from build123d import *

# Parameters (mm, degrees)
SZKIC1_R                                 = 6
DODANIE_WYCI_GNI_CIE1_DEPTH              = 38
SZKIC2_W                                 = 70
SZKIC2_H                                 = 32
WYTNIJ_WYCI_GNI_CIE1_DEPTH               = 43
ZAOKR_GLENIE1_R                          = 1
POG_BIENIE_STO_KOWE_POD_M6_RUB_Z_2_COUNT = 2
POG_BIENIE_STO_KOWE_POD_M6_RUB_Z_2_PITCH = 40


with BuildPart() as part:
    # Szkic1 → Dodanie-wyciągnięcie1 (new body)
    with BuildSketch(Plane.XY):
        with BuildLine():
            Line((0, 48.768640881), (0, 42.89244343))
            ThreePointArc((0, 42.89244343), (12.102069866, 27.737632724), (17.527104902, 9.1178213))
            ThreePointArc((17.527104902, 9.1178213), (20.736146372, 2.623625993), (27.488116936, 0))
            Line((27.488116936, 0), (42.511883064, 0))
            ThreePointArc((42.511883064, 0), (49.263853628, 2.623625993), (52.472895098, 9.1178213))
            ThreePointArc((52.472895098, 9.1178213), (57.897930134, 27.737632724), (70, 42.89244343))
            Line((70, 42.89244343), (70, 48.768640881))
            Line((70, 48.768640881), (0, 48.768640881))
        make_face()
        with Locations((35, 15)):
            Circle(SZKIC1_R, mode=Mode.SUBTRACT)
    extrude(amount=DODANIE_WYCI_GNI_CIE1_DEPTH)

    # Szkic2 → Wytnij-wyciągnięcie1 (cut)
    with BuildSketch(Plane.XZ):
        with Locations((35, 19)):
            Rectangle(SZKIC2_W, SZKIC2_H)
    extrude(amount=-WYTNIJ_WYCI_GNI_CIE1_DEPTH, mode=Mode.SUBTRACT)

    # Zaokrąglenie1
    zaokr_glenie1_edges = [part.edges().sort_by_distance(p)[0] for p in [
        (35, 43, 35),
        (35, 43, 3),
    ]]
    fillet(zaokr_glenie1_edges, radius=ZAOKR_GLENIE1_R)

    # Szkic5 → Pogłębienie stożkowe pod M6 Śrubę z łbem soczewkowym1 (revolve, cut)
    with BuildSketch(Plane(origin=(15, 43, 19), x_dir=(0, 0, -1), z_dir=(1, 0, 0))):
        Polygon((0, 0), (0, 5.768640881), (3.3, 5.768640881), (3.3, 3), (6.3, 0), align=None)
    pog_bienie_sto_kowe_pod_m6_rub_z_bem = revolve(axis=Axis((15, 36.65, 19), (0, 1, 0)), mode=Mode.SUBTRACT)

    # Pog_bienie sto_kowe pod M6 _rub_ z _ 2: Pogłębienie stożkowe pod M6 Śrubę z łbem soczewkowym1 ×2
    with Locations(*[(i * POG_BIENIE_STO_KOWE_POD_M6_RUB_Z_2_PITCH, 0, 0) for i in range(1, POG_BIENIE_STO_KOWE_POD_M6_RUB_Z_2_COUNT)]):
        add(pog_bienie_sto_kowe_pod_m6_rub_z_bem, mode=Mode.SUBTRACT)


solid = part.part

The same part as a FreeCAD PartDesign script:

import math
import FreeCAD as App
import Part
import Sketcher
Q = App.Units.Quantity


def edges_at(feature, points):
    """Names of the edges that pass closest to the given points."""
    edges = feature.Shape.Edges
    near = lambda p: min(range(len(edges)), key=lambda i: edges[i].distToShape(Part.Vertex(*p))[0])
    return sorted({f"Edge{near(p) + 1}" for p in points})


def add_polygon(sketch, points):
    """Adds a closed chain of lines whose ends are joined by coincident constraints."""
    first, n = sketch.GeometryCount, len(points)
    for a, b in zip(points, points[1:] + points[:1]):
        sketch.addGeometry(Part.LineSegment(App.Vector(*a, 0), App.Vector(*b, 0)), False)
    for i in range(n):
        sketch.addConstraint(Sketcher.Constraint("Coincident", first + i, 2, first + (i + 1) % n, 1))

doc = App.newDocument("Part")
body = doc.addObject("PartDesign::Body", "Body")

# Sketch on XY plane
sketch1 = body.newObject("Sketcher::SketchObject", "Sketch")
sketch1.AttachmentSupport = (doc.getObject("XY_Plane"), [""])
sketch1.MapMode = "FlatFace"
sketch1.addGeometry([
    Part.LineSegment(App.Vector(0, 49, 0), App.Vector(0, 43, 0)),  # 0
    Part.ArcOfCircle(Part.Circle(App.Vector(-32, 5, 0), App.Vector(0, 0, 1), 50), math.radians(5), math.radians(50)),  # 1
    Part.ArcOfCircle(Part.Circle(App.Vector(27, 10, 0), App.Vector(0, 0, 1), 10), math.radians(-175), math.radians(-90)),  # 2
    Part.LineSegment(App.Vector(27, 0, 0), App.Vector(43, 0, 0)),  # 3
    Part.ArcOfCircle(Part.Circle(App.Vector(43, 10, 0), App.Vector(0, 0, 1), 10), math.radians(-90), math.radians(-5)),  # 4
    Part.ArcOfCircle(Part.Circle(App.Vector(102, 5, 0), App.Vector(0, 0, 1), 50), math.radians(130), math.radians(175)),  # 5
    Part.LineSegment(App.Vector(70, 43, 0), App.Vector(70, 49, 0)),  # 6
    Part.LineSegment(App.Vector(70, 49, 0), App.Vector(0, 49, 0)),  # 7
    Part.Circle(App.Vector(35, 15, 0), App.Vector(0, 0, 1), 6),  # 8
], False)
sketch1.addConstraint([
    Sketcher.Constraint("Coincident", 0, 2, 1, 2),
    Sketcher.Constraint("Tangent", 1, 1, 2, 1),
    Sketcher.Constraint("Tangent", 2, 2, 3, 1),
    Sketcher.Constraint("Tangent", 3, 2, 4, 1),
    Sketcher.Constraint("Tangent", 4, 2, 5, 2),
    Sketcher.Constraint("Coincident", 5, 1, 6, 1),
    Sketcher.Constraint("Coincident", 6, 2, 7, 1),
    Sketcher.Constraint("Coincident", 7, 2, 0, 1),
    Sketcher.Constraint("Vertical", 0),
    Sketcher.Constraint("Horizontal", 3),
    Sketcher.Constraint("Vertical", 6),
    Sketcher.Constraint("Horizontal", 7),
    Sketcher.Constraint("Equal", 2, 4),
    Sketcher.Constraint("Equal", 1, 5),
    Sketcher.Constraint("PointOnObject", 0, 2, -2),
    Sketcher.Constraint("PointOnObject", 2, 2, -1),
    Sketcher.Constraint("Horizontal", 1, 3, 5, 3),
    Sketcher.Constraint("Horizontal", 0, 2, 5, 1),
    Sketcher.Constraint("Diameter", 8, Q("12 mm")),
    Sketcher.Constraint("Radius", 1, Q("50 mm")),
    Sketcher.Constraint("Radius", 2, Q("10 mm")),
    Sketcher.Constraint("DistanceX", 7, 2, 7, 1, Q("70 mm")),
    Sketcher.Constraint("DistanceX", -1, 1, 8, 3, Q("35 mm")),
    Sketcher.Constraint("DistanceY", -1, 1, 8, 3, Q("15 mm")),
    Sketcher.Constraint("DistanceX", 3, 1, 3, 2, Q("15.023766 mm")),
    Sketcher.Constraint("DistanceY", 0, 2, 0, 1, Q("5.876197 mm")),
    Sketcher.Constraint("DistanceY", -1, 1, 4, 2, Q("9.117821 mm")),
])
pad1 = body.newObject("PartDesign::Pad", "Pad")
pad1.Profile = sketch1
pad1.Length = 38

# Sketch on XZ plane
sketch2 = body.newObject("Sketcher::SketchObject", "Sketch001")
sketch2.AttachmentSupport = (doc.getObject("XZ_Plane"), [""])
sketch2.MapMode = "FlatFace"
add_polygon(sketch2, [(0, 35), (0, 3), (70, 3), (70, 35)])  # lines 0-3
sketch2.addConstraint([
    Sketcher.Constraint("Vertical", 0),
    Sketcher.Constraint("Horizontal", 1),
    Sketcher.Constraint("Vertical", 2),
    Sketcher.Constraint("Horizontal", 3),
    Sketcher.Constraint("PointOnObject", 0, 2, -2),
    Sketcher.Constraint("DistanceX", 1, 1, 1, 2, Q("70 mm")),
    Sketcher.Constraint("DistanceY", 0, 2, 0, 1, Q("32 mm")),
    Sketcher.Constraint("DistanceY", -1, 1, 0, 2, Q("3 mm")),
])
pocket1 = body.newObject("PartDesign::Pocket", "Pocket")
pocket1.Profile = sketch2
pocket1.Length = 43
doc.recompute()

fillet = body.newObject("PartDesign::Fillet", "Fillet")
fillet.Base = (pocket1, edges_at(pocket1, [(35, 43, 35), (35, 43, 3)]))
fillet.Radius = 1

# Sketch on YZ plane
sketch3 = body.newObject("Sketcher::SketchObject", "Sketch002")
sketch3.AttachmentSupport = (doc.getObject("YZ_Plane"), [""])
sketch3.MapMode = "FlatFace"
sketch3.AttachmentOffset = App.Placement(App.Vector(0, 0, 15), App.Rotation())
add_polygon(sketch3, [(48.8, 19), (43, 19), (43, 12.7), (46, 15.7), (48.8, 15.7)])  # lines 0-4
sketch3.addGeometry(Part.LineSegment(App.Vector(43, 19, 0), App.Vector(48.8, 19, 0)), True)  # axis
sketch3.addConstraint([
    Sketcher.Constraint("Horizontal", 0),
    Sketcher.Constraint("Vertical", 1),
    Sketcher.Constraint("Horizontal", 3),
    Sketcher.Constraint("Vertical", 4),
    Sketcher.Constraint("Horizontal", 5),
    Sketcher.Constraint("Coincident", 5, 1, 0, 2),
    Sketcher.Constraint("Vertical", 3, 2, 5, 2),
    Sketcher.Constraint("Angle", 2, Q("45 deg")),
    Sketcher.Constraint("DistanceY", 1, 2, 1, 1, Q("6.3 mm")),
    Sketcher.Constraint("DistanceY", 4, 1, 4, 2, Q("3.3 mm")),
    Sketcher.Constraint("DistanceX", -1, 1, 0, 2, Q("43 mm")),
    Sketcher.Constraint("DistanceY", -1, 1, 0, 2, Q("19 mm")),
    Sketcher.Constraint("DistanceX", 0, 2, 0, 1, Q("5.768641 mm")),
])
groove = body.newObject("PartDesign::Groove", "Groove")
groove.Profile = sketch3
groove.ReferenceAxis = (sketch3, ["Axis0"])
groove.Angle = 360
doc.recompute()

linearpattern = body.newObject("PartDesign::LinearPattern", "LinearPattern")
linearpattern.Originals = [groove]
linearpattern.Direction = (doc.getObject("X_Axis"), [""])
linearpattern.Mode = "offset"
linearpattern.Offset = 40
linearpattern.Occurrences = 2
body.Tip = linearpattern

doc.recompute()
